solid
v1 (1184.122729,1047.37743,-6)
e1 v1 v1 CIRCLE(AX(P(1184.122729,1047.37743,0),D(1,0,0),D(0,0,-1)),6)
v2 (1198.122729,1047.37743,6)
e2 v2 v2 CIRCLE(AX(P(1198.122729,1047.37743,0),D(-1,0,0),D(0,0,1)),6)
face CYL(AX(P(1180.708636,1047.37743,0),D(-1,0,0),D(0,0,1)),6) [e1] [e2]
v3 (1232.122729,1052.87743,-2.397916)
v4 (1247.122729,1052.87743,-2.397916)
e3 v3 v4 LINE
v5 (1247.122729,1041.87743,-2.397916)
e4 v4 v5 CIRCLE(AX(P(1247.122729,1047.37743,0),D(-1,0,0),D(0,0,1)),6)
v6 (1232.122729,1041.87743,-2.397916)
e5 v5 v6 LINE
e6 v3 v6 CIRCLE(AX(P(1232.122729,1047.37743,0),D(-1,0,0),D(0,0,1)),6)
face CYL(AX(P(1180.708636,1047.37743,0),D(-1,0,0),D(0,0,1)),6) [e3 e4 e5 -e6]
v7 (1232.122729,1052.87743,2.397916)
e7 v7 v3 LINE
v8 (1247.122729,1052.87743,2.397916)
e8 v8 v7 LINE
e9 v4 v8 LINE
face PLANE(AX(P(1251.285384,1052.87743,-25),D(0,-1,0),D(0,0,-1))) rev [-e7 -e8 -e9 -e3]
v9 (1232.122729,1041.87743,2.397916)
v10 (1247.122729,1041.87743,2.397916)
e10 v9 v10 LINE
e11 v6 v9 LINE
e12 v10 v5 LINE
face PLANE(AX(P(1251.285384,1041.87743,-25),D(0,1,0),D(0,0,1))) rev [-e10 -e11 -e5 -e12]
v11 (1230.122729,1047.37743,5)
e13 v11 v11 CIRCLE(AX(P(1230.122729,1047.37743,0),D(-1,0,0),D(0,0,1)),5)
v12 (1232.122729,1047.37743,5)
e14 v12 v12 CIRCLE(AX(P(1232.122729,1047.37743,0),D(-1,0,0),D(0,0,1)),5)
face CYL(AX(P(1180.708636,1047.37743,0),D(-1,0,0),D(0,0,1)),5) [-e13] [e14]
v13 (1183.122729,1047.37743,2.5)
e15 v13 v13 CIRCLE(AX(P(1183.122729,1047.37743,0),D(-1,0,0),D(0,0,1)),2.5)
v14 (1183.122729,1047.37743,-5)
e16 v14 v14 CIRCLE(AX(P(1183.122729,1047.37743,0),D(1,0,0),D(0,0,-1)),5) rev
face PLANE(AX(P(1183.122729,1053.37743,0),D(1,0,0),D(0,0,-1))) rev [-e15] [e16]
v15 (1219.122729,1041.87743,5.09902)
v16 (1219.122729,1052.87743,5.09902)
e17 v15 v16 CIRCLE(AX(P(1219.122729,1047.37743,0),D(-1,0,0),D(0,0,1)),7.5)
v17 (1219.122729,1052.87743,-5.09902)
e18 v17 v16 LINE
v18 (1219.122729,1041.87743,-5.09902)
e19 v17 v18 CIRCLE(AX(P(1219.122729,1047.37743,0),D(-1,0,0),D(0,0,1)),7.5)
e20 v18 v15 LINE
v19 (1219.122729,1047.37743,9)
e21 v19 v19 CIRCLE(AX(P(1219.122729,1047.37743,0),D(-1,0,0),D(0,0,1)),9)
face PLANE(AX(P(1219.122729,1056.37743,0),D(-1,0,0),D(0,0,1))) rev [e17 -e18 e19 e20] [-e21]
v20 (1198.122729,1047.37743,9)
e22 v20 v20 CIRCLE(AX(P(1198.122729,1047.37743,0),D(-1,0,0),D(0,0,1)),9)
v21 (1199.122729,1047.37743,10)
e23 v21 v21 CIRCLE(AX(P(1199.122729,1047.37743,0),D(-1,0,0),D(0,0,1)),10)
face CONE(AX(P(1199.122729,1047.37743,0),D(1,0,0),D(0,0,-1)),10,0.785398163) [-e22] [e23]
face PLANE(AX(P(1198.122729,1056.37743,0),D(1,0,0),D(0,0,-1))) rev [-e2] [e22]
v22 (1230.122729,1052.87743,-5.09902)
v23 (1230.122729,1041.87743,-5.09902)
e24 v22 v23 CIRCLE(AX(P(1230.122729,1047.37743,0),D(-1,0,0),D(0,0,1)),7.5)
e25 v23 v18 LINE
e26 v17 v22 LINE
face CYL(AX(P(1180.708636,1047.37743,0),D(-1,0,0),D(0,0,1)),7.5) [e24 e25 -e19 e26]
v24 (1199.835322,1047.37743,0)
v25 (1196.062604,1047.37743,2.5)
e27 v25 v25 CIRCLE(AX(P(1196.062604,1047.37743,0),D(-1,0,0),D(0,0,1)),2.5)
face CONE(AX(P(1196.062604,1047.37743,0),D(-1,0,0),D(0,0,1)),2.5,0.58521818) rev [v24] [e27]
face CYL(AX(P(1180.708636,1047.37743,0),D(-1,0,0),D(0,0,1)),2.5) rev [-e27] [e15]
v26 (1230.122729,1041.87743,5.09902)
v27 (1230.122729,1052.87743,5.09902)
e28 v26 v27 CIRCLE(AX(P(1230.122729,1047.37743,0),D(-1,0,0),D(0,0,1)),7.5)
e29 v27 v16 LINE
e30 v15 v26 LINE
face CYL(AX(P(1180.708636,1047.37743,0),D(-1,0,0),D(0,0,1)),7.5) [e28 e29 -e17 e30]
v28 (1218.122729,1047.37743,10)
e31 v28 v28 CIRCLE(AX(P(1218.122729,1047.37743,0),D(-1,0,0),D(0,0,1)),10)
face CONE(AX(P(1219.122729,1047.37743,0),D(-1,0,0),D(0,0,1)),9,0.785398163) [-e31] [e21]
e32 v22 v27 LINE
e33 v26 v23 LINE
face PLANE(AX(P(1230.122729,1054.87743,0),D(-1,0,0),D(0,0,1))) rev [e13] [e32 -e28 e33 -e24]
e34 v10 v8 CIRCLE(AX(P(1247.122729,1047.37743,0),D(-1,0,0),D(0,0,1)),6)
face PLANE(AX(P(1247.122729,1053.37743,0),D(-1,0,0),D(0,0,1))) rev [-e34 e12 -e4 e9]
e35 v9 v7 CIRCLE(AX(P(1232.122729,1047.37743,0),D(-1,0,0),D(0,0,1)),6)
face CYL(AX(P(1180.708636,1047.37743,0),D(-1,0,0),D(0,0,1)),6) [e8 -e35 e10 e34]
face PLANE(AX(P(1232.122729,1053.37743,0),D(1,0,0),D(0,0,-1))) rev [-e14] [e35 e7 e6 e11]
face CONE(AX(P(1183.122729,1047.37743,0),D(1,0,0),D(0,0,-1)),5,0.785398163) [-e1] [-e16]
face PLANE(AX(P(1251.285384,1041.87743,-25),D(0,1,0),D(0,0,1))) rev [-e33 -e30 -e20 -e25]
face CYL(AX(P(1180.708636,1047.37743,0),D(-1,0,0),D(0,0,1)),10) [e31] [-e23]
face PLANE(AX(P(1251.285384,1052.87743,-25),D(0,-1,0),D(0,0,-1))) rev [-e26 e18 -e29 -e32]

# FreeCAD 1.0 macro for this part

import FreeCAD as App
import Part
import Sketcher
from FreeCAD import Vector


def edges_at(feature, points):
    """Names of the edges that pass closest to the given points."""
    edges = feature.Shape.Edges
    near = lambda p: min(range(len(edges)), key=lambda i: edges[i].distToShape(Part.Vertex(*p))[0])
    return sorted({f"Edge{near(p) + 1}" for p in points})

doc = App.newDocument("Part")
body = doc.addObject("PartDesign::Body", "Body")

# Sketch on XY plane
sketch1 = body.newObject("Sketcher::SketchObject", "Sketch")
sketch1.AttachmentSupport = (doc.getObject("XY_Plane"), [""])
sketch1.MapMode = "FlatFace"
sketch1.addGeometry([
    Part.LineSegment(Vector(1198.1, 1053.4, 0), Vector(1183.1, 1053.4, 0)),  # 0
    Part.LineSegment(Vector(1183.1, 1053.4, 0), Vector(1183.1, 1049.9, 0)),  # 1
    Part.LineSegment(Vector(1183.1, 1049.9, 0), Vector(1196.1, 1049.9, 0)),  # 2
    Part.LineSegment(Vector(1196.1, 1049.9, 0), Vector(1199.8, 1047.4, 0)),  # 3
    Part.LineSegment(Vector(1199.8, 1047.4, 0), Vector(1247.1, 1047.4, 0)),  # 4
    Part.LineSegment(Vector(1247.1, 1047.4, 0), Vector(1247.1, 1053.4, 0)),  # 5
    Part.LineSegment(Vector(1247.1, 1053.4, 0), Vector(1232.1, 1053.4, 0)),  # 6
    Part.LineSegment(Vector(1232.1, 1053.4, 0), Vector(1232.1, 1052.4, 0)),  # 7
    Part.LineSegment(Vector(1232.1, 1052.4, 0), Vector(1230.1, 1052.4, 0)),  # 8
    Part.LineSegment(Vector(1230.1, 1052.4, 0), Vector(1230.1, 1054.9, 0)),  # 9
    Part.LineSegment(Vector(1230.1, 1054.9, 0), Vector(1219.1, 1054.9, 0)),  # 10
    Part.LineSegment(Vector(1219.1, 1054.9, 0), Vector(1219.1, 1056.4, 0)),  # 11
    Part.LineSegment(Vector(1219.1, 1056.4, 0), Vector(1218.1, 1057.4, 0)),  # 12
    Part.LineSegment(Vector(1218.1, 1057.4, 0), Vector(1199.1, 1057.4, 0)),  # 13
    Part.LineSegment(Vector(1199.1, 1057.4, 0), Vector(1198.1, 1056.4, 0)),  # 14
    Part.LineSegment(Vector(1198.1, 1056.4, 0), Vector(1198.1, 1053.4, 0)),  # 15
], False)
sketch1.addGeometry(Part.LineSegment(Vector(1183.1, 1047.4, 0), Vector(1247.1, 1047.4, 0)), True)  # axis
sketch1.addConstraint([
    Sketcher.Constraint("Coincident", 0, 2, 1, 1),
    Sketcher.Constraint("Coincident", 1, 2, 2, 1),
    Sketcher.Constraint("Coincident", 2, 2, 3, 1),
    Sketcher.Constraint("Coincident", 3, 2, 4, 1),
    Sketcher.Constraint("Coincident", 4, 2, 5, 1),
    Sketcher.Constraint("Coincident", 5, 2, 6, 1),
    Sketcher.Constraint("Coincident", 6, 2, 7, 1),
    Sketcher.Constraint("Coincident", 7, 2, 8, 1),
    Sketcher.Constraint("Coincident", 8, 2, 9, 1),
    Sketcher.Constraint("Coincident", 9, 2, 10, 1),
    Sketcher.Constraint("Coincident", 10, 2, 11, 1),
    Sketcher.Constraint("Coincident", 11, 2, 12, 1),
    Sketcher.Constraint("Coincident", 12, 2, 13, 1),
    Sketcher.Constraint("Coincident", 13, 2, 14, 1),
    Sketcher.Constraint("Coincident", 14, 2, 15, 1),
    Sketcher.Constraint("Coincident", 15, 2, 0, 1),
    Sketcher.Constraint("Horizontal", 0),
    Sketcher.Constraint("Vertical", 1),
    Sketcher.Constraint("Horizontal", 2),
    Sketcher.Constraint("Horizontal", 4),
    Sketcher.Constraint("Vertical", 5),
    Sketcher.Constraint("Horizontal", 6),
    Sketcher.Constraint("Vertical", 7),
    Sketcher.Constraint("Horizontal", 8),
    Sketcher.Constraint("Vertical", 9),
    Sketcher.Constraint("Horizontal", 10),
    Sketcher.Constraint("Vertical", 11),
    Sketcher.Constraint("Horizontal", 13),
    Sketcher.Constraint("Vertical", 15),
    Sketcher.Constraint("Horizontal", 16),
    Sketcher.Constraint("Coincident", 16, 2, 4, 2),
    Sketcher.Constraint("Perpendicular", 12, 14),
    Sketcher.Constraint("Horizontal", 0, 2, 5, 2),
    Sketcher.Constraint("Horizontal", 11, 2, 14, 2),
    Sketcher.Constraint("Vertical", 1, 2, 16, 1),
    Sketcher.Constraint("Equal", 0, 6),
    Sketcher.Constraint("Equal", 12, 14),
    Sketcher.Constraint("DistanceX", 0, 2, 0, 1, 15.0),
    Sketcher.Constraint("DistanceX", 8, 2, 8, 1, 2.0),
    Sketcher.Constraint("DistanceX", 10, 2, 10, 1, 11.0),
    Sketcher.Constraint("DistanceX", 13, 2, 13, 1, 19.0),
    Sketcher.Constraint("DistanceX", 16, 1, 16, 2, 64.0),
    Sketcher.Constraint("DistanceY", 5, 1, 5, 2, 6.0),
    Sketcher.Constraint("DistanceY", 7, 2, 7, 1, 1.0),
    Sketcher.Constraint("DistanceY", 15, 2, 15, 1, 3.0),
    Sketcher.Constraint("DistanceY", 1, 2, 1, 1, 3.5),
    Sketcher.Constraint("DistanceY", 9, 1, 9, 2, 2.5),
    Sketcher.Constraint("Distance", 3, 4.525859),
    Sketcher.Constraint("DistanceX", 2, 1, 2, 2, 12.939875),
    Sketcher.Constraint("DistanceX", -1, 1, 0, 2, 1183.122729),
    Sketcher.Constraint("DistanceY", -1, 1, 0, 2, 1053.37743),
])
revolution = body.newObject("PartDesign::Revolution", "Revolution")
revolution.Profile = sketch1
revolution.ReferenceAxis = (sketch1, ["Axis0"])
revolution.Angle = 360
doc.recompute()

chamfer = body.newObject("PartDesign::Chamfer", "Chamfer")
chamfer.Base = (revolution, edges_at(revolution, [(1183.123, 1047.377, -6)]))
chamfer.Size = 1

# Sketch on XY plane
sketch2 = body.newObject("Sketcher::SketchObject", "Sketch001")
sketch2.AttachmentSupport = (doc.getObject("XY_Plane"), [""])
sketch2.MapMode = "FlatFace"
sketch2.addGeometry([
    Part.LineSegment(Vector(1219, 1059, 0), Vector(1219, 1053, 0)),  # 0
    Part.LineSegment(Vector(1219, 1053, 0), Vector(1251, 1053, 0)),  # 1
    Part.LineSegment(Vector(1251, 1053, 0), Vector(1251, 1059, 0)),  # 2
    Part.LineSegment(Vector(1251, 1059, 0), Vector(1219, 1059, 0)),  # 3
    Part.LineSegment(Vector(1219, 1042, 0), Vector(1219, 1036, 0)),  # 4
    Part.LineSegment(Vector(1219, 1036, 0), Vector(1251, 1036, 0)),  # 5
    Part.LineSegment(Vector(1251, 1036, 0), Vector(1251, 1042, 0)),  # 6
    Part.LineSegment(Vector(1251, 1042, 0), Vector(1219, 1042, 0)),  # 7
], False)
sketch2.addConstraint([
    Sketcher.Constraint("Coincident", 0, 2, 1, 1),
    Sketcher.Constraint("Coincident", 1, 2, 2, 1),
    Sketcher.Constraint("Coincident", 2, 2, 3, 1),
    Sketcher.Constraint("Coincident", 3, 2, 0, 1),
    Sketcher.Constraint("Coincident", 4, 2, 5, 1),
    Sketcher.Constraint("Coincident", 5, 2, 6, 1),
    Sketcher.Constraint("Coincident", 6, 2, 7, 1),
    Sketcher.Constraint("Coincident", 7, 2, 4, 1),
    Sketcher.Constraint("Vertical", 0),
    Sketcher.Constraint("Horizontal", 1),
    Sketcher.Constraint("Vertical", 2),
    Sketcher.Constraint("Horizontal", 3),
    Sketcher.Constraint("Vertical", 4),
    Sketcher.Constraint("Horizontal", 5),
    Sketcher.Constraint("Vertical", 6),
    Sketcher.Constraint("Horizontal", 7),
    Sketcher.Constraint("Vertical", 3, 2, 4, 2),
    Sketcher.Constraint("Vertical", 2, 2, 5, 2),
    Sketcher.Constraint("Equal", 2, 4),
    Sketcher.Constraint("DistanceY", 6, 2, 1, 2, 11.0),
    Sketcher.Constraint("DistanceY", 0, 2, 0, 1, 6.236579),
    Sketcher.Constraint("DistanceX", 1, 1, 1, 2, 32.162654),
    Sketcher.Constraint("DistanceX", -1, 1, 0, 2, 1219.122729),
    Sketcher.Constraint("DistanceY", -1, 1, 0, 2, 1052.87743),
])
pocket1 = body.newObject("PartDesign::Pocket", "Pocket")
pocket1.Profile = sketch2
pocket1.Length = 50
pocket1.Midplane = True

doc.recompute()
